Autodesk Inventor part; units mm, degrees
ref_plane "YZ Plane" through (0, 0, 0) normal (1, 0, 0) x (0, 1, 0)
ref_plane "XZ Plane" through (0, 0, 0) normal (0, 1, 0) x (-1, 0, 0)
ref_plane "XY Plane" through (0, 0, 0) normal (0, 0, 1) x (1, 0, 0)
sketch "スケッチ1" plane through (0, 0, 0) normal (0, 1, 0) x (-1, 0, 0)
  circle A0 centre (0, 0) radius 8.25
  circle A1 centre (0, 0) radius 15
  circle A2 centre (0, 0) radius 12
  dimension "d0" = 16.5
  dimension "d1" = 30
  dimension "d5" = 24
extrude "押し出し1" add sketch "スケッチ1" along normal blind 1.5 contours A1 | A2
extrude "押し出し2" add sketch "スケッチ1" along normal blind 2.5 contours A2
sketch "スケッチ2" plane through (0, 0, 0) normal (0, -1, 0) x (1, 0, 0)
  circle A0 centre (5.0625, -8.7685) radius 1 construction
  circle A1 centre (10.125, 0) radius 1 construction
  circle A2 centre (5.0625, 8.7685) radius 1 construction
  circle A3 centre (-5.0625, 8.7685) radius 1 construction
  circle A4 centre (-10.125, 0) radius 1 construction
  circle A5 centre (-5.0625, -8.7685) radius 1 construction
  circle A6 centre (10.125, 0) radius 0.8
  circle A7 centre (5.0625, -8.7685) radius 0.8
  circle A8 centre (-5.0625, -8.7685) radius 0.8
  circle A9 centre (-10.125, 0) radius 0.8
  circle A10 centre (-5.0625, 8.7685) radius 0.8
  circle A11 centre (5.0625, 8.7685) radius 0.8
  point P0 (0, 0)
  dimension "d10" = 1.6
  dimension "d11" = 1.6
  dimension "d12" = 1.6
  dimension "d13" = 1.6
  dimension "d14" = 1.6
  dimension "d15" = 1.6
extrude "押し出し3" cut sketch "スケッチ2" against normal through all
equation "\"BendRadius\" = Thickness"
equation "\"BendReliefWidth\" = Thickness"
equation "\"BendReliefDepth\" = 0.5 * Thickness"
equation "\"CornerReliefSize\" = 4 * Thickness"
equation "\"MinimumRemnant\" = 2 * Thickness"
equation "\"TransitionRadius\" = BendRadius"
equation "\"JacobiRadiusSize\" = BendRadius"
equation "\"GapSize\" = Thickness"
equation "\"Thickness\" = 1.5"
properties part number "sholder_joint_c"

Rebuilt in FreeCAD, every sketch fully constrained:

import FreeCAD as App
import Part
import Sketcher
from FreeCAD import Vector
Q = App.Units.Quantity

doc = App.newDocument("Part")
body = doc.addObject("PartDesign::Body", "Body")

sketch1 = body.newObject("Sketcher::SketchObject", "Sketch")
sketch1.AttachmentSupport = (doc.getObject("XZ_Plane"), [""])
sketch1.MapMode = "FlatFace"
sketch1.addGeometry(Part.Circle(Vector(0, 0, 0), Vector(0, 0, 1), 15), False)
sketch1.addGeometry(Part.Circle(Vector(0, 0, 0), Vector(0, 0, 1), 8.25), False)
sketch1.addConstraint(Sketcher.Constraint("Coincident", 0, 3, -1, 1))
sketch1.addConstraint(Sketcher.Constraint("Coincident", 1, 3, -1, 1))
sketch1.addConstraint(Sketcher.Constraint("Diameter", 0, Q("30 mm")))
sketch1.addConstraint(Sketcher.Constraint("Diameter", 1, Q("16.5 mm")))
pad1 = body.newObject("PartDesign::Pad", "Pad")
pad1.Profile = sketch1
pad1.Length = 1.5
pad1.Reversed = True

sketch2 = body.newObject("Sketcher::SketchObject", "Sketch001")
sketch2.AttachmentSupport = (doc.getObject("XZ_Plane"), [""])
sketch2.MapMode = "FlatFace"
sketch2.addGeometry(Part.Circle(Vector(0, 0, 0), Vector(0, 0, 1), 12), False)
sketch2.addGeometry(Part.Circle(Vector(0, 0, 0), Vector(0, 0, 1), 8.25), False)
sketch2.addConstraint(Sketcher.Constraint("Coincident", 0, 3, -1, 1))
sketch2.addConstraint(Sketcher.Constraint("Coincident", 1, 3, -1, 1))
sketch2.addConstraint(Sketcher.Constraint("Diameter", 0, Q("24 mm")))
sketch2.addConstraint(Sketcher.Constraint("Diameter", 1, Q("16.5 mm")))
pad2 = body.newObject("PartDesign::Pad", "Pad001")
pad2.Profile = sketch2
pad2.Length = 2.5
pad2.Reversed = True

sketch3 = body.newObject("Sketcher::SketchObject", "Sketch002")
sketch3.AttachmentSupport = (doc.getObject("XZ_Plane"), [""])
sketch3.MapMode = "FlatFace"
sketch3.addGeometry(Part.Circle(Vector(10.125, 0, 0), Vector(0, 0, 1), 0.8), False)
sketch3.addGeometry(Part.Circle(Vector(5.0625, -8.7685, 0), Vector(0, 0, 1), 0.8), False)
sketch3.addGeometry(Part.Circle(Vector(-5.0625, -8.7685, 0), Vector(0, 0, 1), 0.8), False)
sketch3.addGeometry(Part.Circle(Vector(-10.125, 0, 0), Vector(0, 0, 1), 0.8), False)
sketch3.addGeometry(Part.Circle(Vector(-5.0625, 8.7685, 0), Vector(0, 0, 1), 0.8), False)
sketch3.addGeometry(Part.Circle(Vector(5.0625, 8.7685, 0), Vector(0, 0, 1), 0.8), False)
sketch3.addConstraint(Sketcher.Constraint("Equal", 0, 1))
sketch3.addConstraint(Sketcher.Constraint("Equal", 1, 2))
sketch3.addConstraint(Sketcher.Constraint("Equal", 2, 3))
sketch3.addConstraint(Sketcher.Constraint("Equal", 3, 4))
sketch3.addConstraint(Sketcher.Constraint("Equal", 4, 5))
sketch3.addConstraint(Sketcher.Constraint("Symmetric", 0, 3, 3, 3, -1, 1))
sketch3.addConstraint(Sketcher.Constraint("Symmetric", 1, 3, 4, 3, -1, 1))
sketch3.addConstraint(Sketcher.Constraint("Symmetric", 2, 3, 5, 3, -1, 1))
sketch3.addConstraint(Sketcher.Constraint("Symmetric", 1, 3, 2, 3, -2))
sketch3.addConstraint(Sketcher.Constraint("PointOnObject", 0, 3, -1))
sketch3.addConstraint(Sketcher.Constraint("Diameter", 0, Q("1.6 mm")))
sketch3.addConstraint(Sketcher.Constraint("DistanceX", 3, 3, 0, 3, Q("20.25 mm")))
sketch3.addConstraint(Sketcher.Constraint("DistanceX", 2, 3, 1, 3, Q("10.125 mm")))
sketch3.addConstraint(Sketcher.Constraint("DistanceY", 2, 3, 4, 3, Q("17.537 mm")))
pocket1 = body.newObject("PartDesign::Pocket", "Pocket")
pocket1.Profile = sketch3
pocket1.Type = "ThroughAll"

doc.recompute()
